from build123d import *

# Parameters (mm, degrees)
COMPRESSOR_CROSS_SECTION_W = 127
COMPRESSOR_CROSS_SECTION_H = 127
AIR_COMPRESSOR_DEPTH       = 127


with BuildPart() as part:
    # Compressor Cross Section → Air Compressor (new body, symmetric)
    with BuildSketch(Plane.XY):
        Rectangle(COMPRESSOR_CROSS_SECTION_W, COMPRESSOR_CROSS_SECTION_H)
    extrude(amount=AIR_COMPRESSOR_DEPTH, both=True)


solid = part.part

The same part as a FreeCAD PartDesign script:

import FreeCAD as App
import Part
import Sketcher
Q = App.Units.Quantity

doc = App.newDocument("Part")
body = doc.addObject("PartDesign::Body", "Body")

# Sketch on XY plane
sketch1 = body.newObject("Sketcher::SketchObject", "Sketch")
sketch1.AttachmentSupport = (doc.getObject("XY_Plane"), [""])
sketch1.MapMode = "FlatFace"
sketch1.addGeometry([
    Part.LineSegment(App.Vector(-63.5, 63.5, 0), App.Vector(-63.5, -63.5, 0)),
    Part.LineSegment(App.Vector(-63.5, -63.5, 0), App.Vector(63.5, -63.5, 0)),
    Part.LineSegment(App.Vector(63.5, -63.5, 0), App.Vector(63.5, 63.5, 0)),
    Part.LineSegment(App.Vector(63.5, 63.5, 0), App.Vector(-63.5, 63.5, 0)),
], False)
sketch1.addConstraint([
    Sketcher.Constraint("Coincident", 0, 2, 1, 1),
    Sketcher.Constraint("Coincident", 1, 2, 2, 1),
    Sketcher.Constraint("Coincident", 2, 2, 3, 1),
    Sketcher.Constraint("Coincident", 3, 2, 0, 1),
    Sketcher.Constraint("Vertical", 0),
    Sketcher.Constraint("Horizontal", 1),
    Sketcher.Constraint("Vertical", 2),
    Sketcher.Constraint("Horizontal", 3),
    Sketcher.Constraint("Symmetric", 0, 2, 2, 2, -1, 1),
    Sketcher.Constraint("Equal", 3, 0),
    Sketcher.Constraint("DistanceX", 1, 1, 1, 2, Q("5 in")),
])
pad1 = body.newObject("PartDesign::Pad", "Pad")
pad1.Profile = sketch1
pad1.Length = Q("10 in")
pad1.Midplane = True

doc.recompute()
